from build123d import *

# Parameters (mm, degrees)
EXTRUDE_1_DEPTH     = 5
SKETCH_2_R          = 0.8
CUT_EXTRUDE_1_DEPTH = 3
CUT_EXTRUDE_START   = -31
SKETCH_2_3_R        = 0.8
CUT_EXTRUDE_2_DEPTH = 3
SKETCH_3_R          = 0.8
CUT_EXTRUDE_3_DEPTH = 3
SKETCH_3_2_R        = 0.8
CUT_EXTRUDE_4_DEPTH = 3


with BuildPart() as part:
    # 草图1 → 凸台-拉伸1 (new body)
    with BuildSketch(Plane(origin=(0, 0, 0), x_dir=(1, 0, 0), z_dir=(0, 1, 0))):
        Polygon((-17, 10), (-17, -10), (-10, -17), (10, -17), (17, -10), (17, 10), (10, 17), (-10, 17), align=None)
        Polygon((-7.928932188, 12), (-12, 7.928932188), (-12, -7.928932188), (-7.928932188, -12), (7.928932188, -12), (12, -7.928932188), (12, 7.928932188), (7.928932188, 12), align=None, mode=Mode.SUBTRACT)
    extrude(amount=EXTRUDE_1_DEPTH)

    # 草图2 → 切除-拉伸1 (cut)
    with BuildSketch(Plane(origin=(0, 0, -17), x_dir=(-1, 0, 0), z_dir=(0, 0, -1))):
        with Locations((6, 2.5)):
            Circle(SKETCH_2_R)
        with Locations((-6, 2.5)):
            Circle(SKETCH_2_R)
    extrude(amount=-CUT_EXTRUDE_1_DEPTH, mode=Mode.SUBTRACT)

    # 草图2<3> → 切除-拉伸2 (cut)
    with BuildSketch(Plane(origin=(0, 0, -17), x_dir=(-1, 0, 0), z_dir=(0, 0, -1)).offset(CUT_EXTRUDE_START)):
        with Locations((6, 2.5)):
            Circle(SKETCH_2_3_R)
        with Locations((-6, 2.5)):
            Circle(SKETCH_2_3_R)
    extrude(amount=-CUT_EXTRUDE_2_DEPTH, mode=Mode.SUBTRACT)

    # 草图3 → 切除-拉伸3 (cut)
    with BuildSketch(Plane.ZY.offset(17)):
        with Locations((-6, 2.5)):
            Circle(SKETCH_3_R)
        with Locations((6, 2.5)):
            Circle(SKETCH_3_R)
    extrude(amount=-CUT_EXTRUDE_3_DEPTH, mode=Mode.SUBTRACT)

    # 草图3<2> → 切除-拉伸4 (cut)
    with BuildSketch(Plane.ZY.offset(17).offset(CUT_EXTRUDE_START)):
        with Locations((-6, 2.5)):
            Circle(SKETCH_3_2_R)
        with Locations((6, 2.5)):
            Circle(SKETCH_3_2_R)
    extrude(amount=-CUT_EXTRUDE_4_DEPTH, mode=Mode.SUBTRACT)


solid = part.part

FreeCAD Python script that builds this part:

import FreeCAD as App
import Part
import Sketcher

doc = App.newDocument("Part")
body = doc.addObject("PartDesign::Body", "Body")

# Sketch on XZ plane
sketch1 = body.newObject("Sketcher::SketchObject", "Sketch")
sketch1.AttachmentSupport = (doc.getObject("XZ_Plane"), [""])
sketch1.MapMode = "FlatFace"
sketch1.addGeometry([
    Part.LineSegment(App.Vector(-17, -10, 0), App.Vector(-17, 10, 0)),  # 0
    Part.LineSegment(App.Vector(-17, 10, 0), App.Vector(-10, 17, 0)),  # 1
    Part.LineSegment(App.Vector(-10, 17, 0), App.Vector(10, 17, 0)),  # 2
    Part.LineSegment(App.Vector(10, 17, 0), App.Vector(17, 10, 0)),  # 3
    Part.LineSegment(App.Vector(17, 10, 0), App.Vector(17, -10, 0)),  # 4
    Part.LineSegment(App.Vector(17, -10, 0), App.Vector(10, -17, 0)),  # 5
    Part.LineSegment(App.Vector(10, -17, 0), App.Vector(-10, -17, 0)),  # 6
    Part.LineSegment(App.Vector(-10, -17, 0), App.Vector(-17, -10, 0)),  # 7
    Part.LineSegment(App.Vector(-12, -7.928932, 0), App.Vector(-7.928932, -12, 0)),  # 8
    Part.LineSegment(App.Vector(-7.928932, -12, 0), App.Vector(7.928932, -12, 0)),  # 9
    Part.LineSegment(App.Vector(7.928932, -12, 0), App.Vector(12, -7.928932, 0)),  # 10
    Part.LineSegment(App.Vector(12, -7.928932, 0), App.Vector(12, 7.928932, 0)),  # 11
    Part.LineSegment(App.Vector(12, 7.928932, 0), App.Vector(7.928932, 12, 0)),  # 12
    Part.LineSegment(App.Vector(7.928932, 12, 0), App.Vector(-7.928932, 12, 0)),  # 13
    Part.LineSegment(App.Vector(-7.928932, 12, 0), App.Vector(-12, 7.928932, 0)),  # 14
    Part.LineSegment(App.Vector(-12, 7.928932, 0), App.Vector(-12, -7.928932, 0)),  # 15
], False)
sketch1.addConstraint([
    Sketcher.Constraint("Coincident", 0, 2, 1, 1),
    Sketcher.Constraint("Coincident", 1, 2, 2, 1),
    Sketcher.Constraint("Coincident", 2, 2, 3, 1),
    Sketcher.Constraint("Coincident", 3, 2, 4, 1),
    Sketcher.Constraint("Coincident", 4, 2, 5, 1),
    Sketcher.Constraint("Coincident", 5, 2, 6, 1),
    Sketcher.Constraint("Coincident", 6, 2, 7, 1),
    Sketcher.Constraint("Coincident", 7, 2, 0, 1),
    Sketcher.Constraint("Coincident", 8, 2, 9, 1),
    Sketcher.Constraint("Coincident", 9, 2, 10, 1),
    Sketcher.Constraint("Coincident", 10, 2, 11, 1),
    Sketcher.Constraint("Coincident", 11, 2, 12, 1),
    Sketcher.Constraint("Coincident", 12, 2, 13, 1),
    Sketcher.Constraint("Coincident", 13, 2, 14, 1),
    Sketcher.Constraint("Coincident", 14, 2, 15, 1),
    Sketcher.Constraint("Coincident", 15, 2, 8, 1),
    Sketcher.Constraint("Vertical", 0),
    Sketcher.Constraint("Horizontal", 2),
    Sketcher.Constraint("Vertical", 4),
    Sketcher.Constraint("Horizontal", 6),
    Sketcher.Constraint("Horizontal", 9),
    Sketcher.Constraint("Vertical", 11),
    Sketcher.Constraint("Horizontal", 13),
    Sketcher.Constraint("Vertical", 15),
    Sketcher.Constraint("Symmetric", 0, 2, 4, 2, -1, 1),
    Sketcher.Constraint("Symmetric", 1, 2, 5, 2, -1, 1),
    Sketcher.Constraint("Symmetric", 8, 2, 12, 2, -1, 1),
    Sketcher.Constraint("Symmetric", 10, 2, 14, 2, -1, 1),
    Sketcher.Constraint("Perpendicular", 1, 3),
    Sketcher.Constraint("Perpendicular", 5, 7),
    Sketcher.Constraint("Parallel", 7, 8),
    Sketcher.Constraint("Perpendicular", 8, 10),
    Sketcher.Constraint("Perpendicular", 10, 12),
    Sketcher.Constraint("Perpendicular", 12, 14),
    Sketcher.Constraint("Horizontal", 0, 2, 3, 2),
    Sketcher.Constraint("Horizontal", 4, 2, 7, 2),
    Sketcher.Constraint("Horizontal", 11, 2, 14, 2),
    Sketcher.Constraint("Vertical", 2, 2, 5, 2),
    Sketcher.Constraint("Equal", 6, 0),
    Sketcher.Constraint("Equal", 13, 11),
    Sketcher.Constraint("DistanceX", 2, 1, 2, 2, 20.0),
    Sketcher.Constraint("DistanceX", 0, 2, -1, 1, 17.0),
    Sketcher.Constraint("DistanceY", 8, 2, -1, 1, 12.0),
    Sketcher.Constraint("Distance", 8, 5.757359),
])
pad1 = body.newObject("PartDesign::Pad", "Pad")
pad1.Profile = sketch1
pad1.Length = 5
pad1.Reversed = True

# Sketch on XY plane
sketch2 = body.newObject("Sketcher::SketchObject", "Sketch001")
sketch2.AttachmentSupport = (doc.getObject("XY_Plane"), [""])
sketch2.MapMode = "FlatFace"
sketch2.AttachmentOffset = App.Placement(App.Vector(0, 0, -17), App.Rotation())
sketch2.addGeometry([
    Part.Circle(App.Vector(-6, 2.5, 0), App.Vector(0, 0, 1), 0.8),
    Part.Circle(App.Vector(6, 2.5, 0), App.Vector(0, 0, 1), 0.8),
], False)
sketch2.addConstraint([
    Sketcher.Constraint("Equal", 0, 1),
    Sketcher.Constraint("Symmetric", 0, 3, 1, 3, -2),
    Sketcher.Constraint("Diameter", 0, 1.6),
    Sketcher.Constraint("DistanceX", 0, 3, -1, 1, 6.0),
    Sketcher.Constraint("DistanceY", -1, 1, 0, 3, 2.5),
])
pocket1 = body.newObject("PartDesign::Pocket", "Pocket")
pocket1.Profile = sketch2
pocket1.Length = 3
pocket1.Reversed = True

# Sketch on XY plane
sketch3 = body.newObject("Sketcher::SketchObject", "Sketch002")
sketch3.AttachmentSupport = (doc.getObject("XY_Plane"), [""])
sketch3.MapMode = "FlatFace"
sketch3.AttachmentOffset = App.Placement(App.Vector(0, 0, 14), App.Rotation())
sketch3.addGeometry([
    Part.Circle(App.Vector(-6, 2.5, 0), App.Vector(0, 0, 1), 0.8),
    Part.Circle(App.Vector(6, 2.5, 0), App.Vector(0, 0, 1), 0.8),
], False)
sketch3.addConstraint([
    Sketcher.Constraint("Equal", 0, 1),
    Sketcher.Constraint("Symmetric", 0, 3, 1, 3, -2),
    Sketcher.Constraint("Diameter", 0, 1.6),
    Sketcher.Constraint("DistanceX", 0, 3, -1, 1, 6.0),
    Sketcher.Constraint("DistanceY", -1, 1, 0, 3, 2.5),
])
pocket2 = body.newObject("PartDesign::Pocket", "Pocket001")
pocket2.Profile = sketch3
pocket2.Length = 3
pocket2.Reversed = True

# Sketch on YZ plane
sketch4 = body.newObject("Sketcher::SketchObject", "Sketch003")
sketch4.AttachmentSupport = (doc.getObject("YZ_Plane"), [""])
sketch4.MapMode = "FlatFace"
sketch4.AttachmentOffset = App.Placement(App.Vector(0, 0, -17), App.Rotation())
sketch4.addGeometry([
    Part.Circle(App.Vector(2.5, -6, 0), App.Vector(0, 0, 1), 0.8),
    Part.Circle(App.Vector(2.5, 6, 0), App.Vector(0, 0, 1), 0.8),
], False)
sketch4.addConstraint([
    Sketcher.Constraint("Equal", 0, 1),
    Sketcher.Constraint("Symmetric", 0, 3, 1, 3, -1),
    Sketcher.Constraint("Diameter", 0, 1.6),
    Sketcher.Constraint("DistanceY", 0, 3, -1, 1, 6.0),
    Sketcher.Constraint("DistanceX", -1, 1, 0, 3, 2.5),
])
pocket3 = body.newObject("PartDesign::Pocket", "Pocket002")
pocket3.Profile = sketch4
pocket3.Length = 3
pocket3.Reversed = True

# Sketch on YZ plane
sketch5 = body.newObject("Sketcher::SketchObject", "Sketch004")
sketch5.AttachmentSupport = (doc.getObject("YZ_Plane"), [""])
sketch5.MapMode = "FlatFace"
sketch5.AttachmentOffset = App.Placement(App.Vector(0, 0, 14), App.Rotation())
sketch5.addGeometry([
    Part.Circle(App.Vector(2.5, -6, 0), App.Vector(0, 0, 1), 0.8),
    Part.Circle(App.Vector(2.5, 6, 0), App.Vector(0, 0, 1), 0.8),
], False)
sketch5.addConstraint([
    Sketcher.Constraint("Equal", 0, 1),
    Sketcher.Constraint("Symmetric", 0, 3, 1, 3, -1),
    Sketcher.Constraint("Diameter", 0, 1.6),
    Sketcher.Constraint("DistanceY", 0, 3, -1, 1, 6.0),
    Sketcher.Constraint("DistanceX", -1, 1, 0, 3, 2.5),
])
pocket4 = body.newObject("PartDesign::Pocket", "Pocket003")
pocket4.Profile = sketch5
pocket4.Length = 3
pocket4.Reversed = True

doc.recompute()
